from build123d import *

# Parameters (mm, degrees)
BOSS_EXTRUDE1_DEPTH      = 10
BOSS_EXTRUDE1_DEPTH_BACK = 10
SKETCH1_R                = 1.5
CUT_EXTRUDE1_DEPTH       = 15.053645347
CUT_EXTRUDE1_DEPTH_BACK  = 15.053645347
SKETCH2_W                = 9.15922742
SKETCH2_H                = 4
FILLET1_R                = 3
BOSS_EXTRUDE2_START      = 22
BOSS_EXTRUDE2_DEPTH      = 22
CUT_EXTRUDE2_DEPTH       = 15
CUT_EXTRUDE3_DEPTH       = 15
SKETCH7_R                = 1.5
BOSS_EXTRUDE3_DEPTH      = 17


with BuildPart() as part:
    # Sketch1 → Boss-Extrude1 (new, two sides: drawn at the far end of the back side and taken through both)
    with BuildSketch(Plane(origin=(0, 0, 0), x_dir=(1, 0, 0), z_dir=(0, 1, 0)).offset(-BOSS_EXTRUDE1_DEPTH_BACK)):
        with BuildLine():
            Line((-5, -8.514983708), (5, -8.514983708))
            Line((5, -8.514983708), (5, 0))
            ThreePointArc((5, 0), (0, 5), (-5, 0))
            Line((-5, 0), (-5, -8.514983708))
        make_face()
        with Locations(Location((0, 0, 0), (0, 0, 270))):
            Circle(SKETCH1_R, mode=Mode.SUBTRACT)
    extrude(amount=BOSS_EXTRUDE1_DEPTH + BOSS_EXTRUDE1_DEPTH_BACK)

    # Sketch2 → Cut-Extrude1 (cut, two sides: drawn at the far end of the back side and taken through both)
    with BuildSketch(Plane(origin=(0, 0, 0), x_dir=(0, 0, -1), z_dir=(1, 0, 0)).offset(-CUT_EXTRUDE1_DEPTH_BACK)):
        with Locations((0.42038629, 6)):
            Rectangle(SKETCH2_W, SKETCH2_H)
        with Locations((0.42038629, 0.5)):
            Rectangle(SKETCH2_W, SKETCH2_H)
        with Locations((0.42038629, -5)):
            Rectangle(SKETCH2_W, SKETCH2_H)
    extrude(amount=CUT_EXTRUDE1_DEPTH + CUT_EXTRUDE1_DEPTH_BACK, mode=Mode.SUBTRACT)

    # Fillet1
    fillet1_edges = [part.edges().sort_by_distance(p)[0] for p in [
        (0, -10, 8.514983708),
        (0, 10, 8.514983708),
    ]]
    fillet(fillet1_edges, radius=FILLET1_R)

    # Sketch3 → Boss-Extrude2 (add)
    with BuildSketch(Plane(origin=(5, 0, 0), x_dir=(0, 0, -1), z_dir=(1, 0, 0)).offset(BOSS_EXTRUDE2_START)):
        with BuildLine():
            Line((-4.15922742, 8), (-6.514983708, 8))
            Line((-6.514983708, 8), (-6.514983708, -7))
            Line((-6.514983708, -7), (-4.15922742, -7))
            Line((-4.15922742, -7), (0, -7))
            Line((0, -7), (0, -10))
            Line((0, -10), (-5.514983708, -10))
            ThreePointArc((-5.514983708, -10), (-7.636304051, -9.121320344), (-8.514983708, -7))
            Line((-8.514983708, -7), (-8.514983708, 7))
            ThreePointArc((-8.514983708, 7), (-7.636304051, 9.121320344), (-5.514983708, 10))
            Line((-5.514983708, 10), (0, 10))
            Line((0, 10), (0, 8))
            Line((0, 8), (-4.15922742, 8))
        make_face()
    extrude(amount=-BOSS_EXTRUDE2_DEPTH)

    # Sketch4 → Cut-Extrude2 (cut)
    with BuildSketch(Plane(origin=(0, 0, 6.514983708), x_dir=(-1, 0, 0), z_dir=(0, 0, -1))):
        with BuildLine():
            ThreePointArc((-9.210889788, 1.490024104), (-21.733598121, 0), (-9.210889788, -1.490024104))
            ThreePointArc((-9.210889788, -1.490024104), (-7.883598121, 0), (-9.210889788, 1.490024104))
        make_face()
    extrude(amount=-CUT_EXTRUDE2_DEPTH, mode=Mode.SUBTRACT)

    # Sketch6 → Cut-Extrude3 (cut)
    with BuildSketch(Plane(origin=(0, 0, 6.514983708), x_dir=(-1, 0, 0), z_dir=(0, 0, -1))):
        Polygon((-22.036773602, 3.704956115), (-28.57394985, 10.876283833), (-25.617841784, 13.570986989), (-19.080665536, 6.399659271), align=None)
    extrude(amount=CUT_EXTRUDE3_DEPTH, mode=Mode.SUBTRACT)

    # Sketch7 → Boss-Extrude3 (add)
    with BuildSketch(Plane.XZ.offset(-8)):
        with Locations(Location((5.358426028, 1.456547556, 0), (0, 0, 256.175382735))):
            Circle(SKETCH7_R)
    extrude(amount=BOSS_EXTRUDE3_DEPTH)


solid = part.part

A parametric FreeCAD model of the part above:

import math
import FreeCAD as App
import Part
import Sketcher

V = App.Vector
Q = App.Units.Quantity


def edges_at(feature, points):
    """Names of the edges that pass closest to the given points."""
    edges = feature.Shape.Edges
    near = lambda p: min(range(len(edges)), key=lambda i: edges[i].distToShape(Part.Vertex(*p))[0])
    return sorted({f"Edge{near(p) + 1}" for p in points})


def add_polygon(sketch, points):
    """Adds a closed chain of lines whose ends are joined by coincident constraints."""
    first, n = sketch.GeometryCount, len(points)
    for a, b in zip(points, points[1:] + points[:1]):
        sketch.addGeometry(Part.LineSegment(App.Vector(*a, 0), App.Vector(*b, 0)), False)
    for i in range(n):
        sketch.addConstraint(Sketcher.Constraint("Coincident", first + i, 2, first + (i + 1) % n, 1))

doc = App.newDocument("Part")
body = doc.addObject("PartDesign::Body", "Body")

# Sketch on XZ plane
sketch1 = doc.addObject("Sketcher::SketchObject", "Sketch")
body.addObject(sketch1)
sketch1.AttachmentSupport = (doc.XZ_Plane, [""])
sketch1.MapMode = "FlatFace"
sketch1.addGeometry([
    Part.LineSegment(V(-5, 8.514984, 0), V(5, 8.514984, 0)),  # 0
    Part.LineSegment(V(5, 8.514984, 0), V(5, 0, 0)),  # 1
    Part.ArcOfCircle(Part.Circle(V(0, 0, 0), V(0, 0, 1), 5), math.radians(180), math.radians(360)),  # 2
    Part.LineSegment(V(-5, 0, 0), V(-5, 8.514984, 0)),  # 3
    Part.Circle(V(0, 0, 0), V(0, 0, 1), 1.5),  # 4
], False)
sketch1.addConstraint([
    Sketcher.Constraint("Coincident", 0, 2, 1, 1),
    Sketcher.Constraint("Tangent", 1, 2, 2, 2),
    Sketcher.Constraint("Tangent", 2, 1, 3, 1),
    Sketcher.Constraint("Coincident", 3, 2, 0, 1),
    Sketcher.Constraint("Horizontal", 0),
    Sketcher.Constraint("Vertical", 1),
    Sketcher.Constraint("Vertical", 3),
    Sketcher.Constraint("Coincident", 2, 3, -1, 1),
    Sketcher.Constraint("Coincident", 4, 3, -1, 1),
    Sketcher.Constraint("Diameter", 4, Q("3 mm")),
    Sketcher.Constraint("Radius", 2, Q("5 mm")),
    Sketcher.Constraint("DistanceY", 1, 2, 1, 1, Q("8.514984 mm")),
])
pad1 = doc.addObject("PartDesign::Pad", "Pad")
body.addObject(pad1)
pad1.Profile = sketch1
pad1.Type = "TwoLengths"
pad1.Length = 10
pad1.Length2 = 10
pad1.Reversed = True

# Sketch on YZ plane
sketch2 = doc.addObject("Sketcher::SketchObject", "Sketch001")
body.addObject(sketch2)
sketch2.AttachmentSupport = (doc.YZ_Plane, [""])
sketch2.MapMode = "FlatFace"
add_polygon(sketch2, [(8, 4.159227), (4, 4.159227), (4, -5), (8, -5)])  # lines 0-3
add_polygon(sketch2, [(2.5, 4.159227), (-1.5, 4.159227), (-1.5, -5), (2.5, -5)])  # lines 4-7
add_polygon(sketch2, [(-3, 4.159227), (-7, 4.159227), (-7, -5), (-3, -5)])  # lines 8-11
sketch2.addConstraint([
    Sketcher.Constraint("Horizontal", 0),
    Sketcher.Constraint("Vertical", 1),
    Sketcher.Constraint("Horizontal", 2),
    Sketcher.Constraint("Vertical", 3),
    Sketcher.Constraint("Horizontal", 4),
    Sketcher.Constraint("Vertical", 5),
    Sketcher.Constraint("Horizontal", 6),
    Sketcher.Constraint("Vertical", 7),
    Sketcher.Constraint("Horizontal", 8),
    Sketcher.Constraint("Vertical", 9),
    Sketcher.Constraint("Horizontal", 10),
    Sketcher.Constraint("Vertical", 11),
    Sketcher.Constraint("Horizontal", 3, 2, 4, 2),
    Sketcher.Constraint("Horizontal", 2, 2, 5, 2),
    Sketcher.Constraint("Horizontal", 7, 2, 8, 2),
    Sketcher.Constraint("Horizontal", 6, 2, 9, 2),
    Sketcher.Constraint("Equal", 2, 4),
    Sketcher.Constraint("Equal", 6, 8),
    Sketcher.Constraint("DistanceX", 0, 2, 0, 1, Q("4 mm")),
    Sketcher.Constraint("DistanceX", -1, 1, 0, 2, Q("4 mm")),
    Sketcher.Constraint("DistanceY", 1, 2, -1, 1, Q("5 mm")),
    Sketcher.Constraint("DistanceX", 8, 2, -1, 1, Q("7 mm")),
    Sketcher.Constraint("DistanceX", 4, 2, -1, 1, Q("1.5 mm")),
    Sketcher.Constraint("DistanceY", 1, 2, 1, 1, Q("9.159227 mm")),
])
pocket1 = doc.addObject("PartDesign::Pocket", "Pocket")
body.addObject(pocket1)
pocket1.Profile = sketch2
pocket1.Type = "ThroughAll"
pocket1.Midplane = True
doc.recompute()

fillet = doc.addObject("PartDesign::Fillet", "Fillet")
body.addObject(fillet)
fillet.Base = (pocket1, edges_at(pocket1, [(0, -10, 8.515), (0, 10, 8.515)]))
fillet.Radius = 3

# Sketch on YZ plane
sketch3 = doc.addObject("Sketcher::SketchObject", "Sketch002")
body.addObject(sketch3)
sketch3.AttachmentSupport = (doc.YZ_Plane, [""])
sketch3.MapMode = "FlatFace"
sketch3.AttachmentOffset = App.Placement(V(0, 0, 27), App.Rotation())
sketch3.addGeometry([
    Part.LineSegment(V(-7, 6.514984, 0), V(8, 6.514984, 0)),  # 0
    Part.LineSegment(V(8, 6.514984, 0), V(8, 0, 0)),  # 1
    Part.LineSegment(V(8, 0, 0), V(10, 0, 0)),  # 2
    Part.LineSegment(V(10, 0, 0), V(10, 5.514984, 0)),  # 3
    Part.ArcOfCircle(Part.Circle(V(7, 5.514984, 0), V(0, 0, 1), 3), math.radians(0), math.radians(90)),  # 4
    Part.LineSegment(V(7, 8.514984, 0), V(-7, 8.514984, 0)),  # 5
    Part.ArcOfCircle(Part.Circle(V(-7, 5.514984, 0), V(0, 0, 1), 3), math.radians(90), math.radians(180)),  # 6
    Part.LineSegment(V(-10, 5.514984, 0), V(-10, 0, 0)),  # 7
    Part.LineSegment(V(-10, 0, 0), V(-7, 0, 0)),  # 8
    Part.LineSegment(V(-7, 0, 0), V(-7, 6.514984, 0)),  # 9
], False)
sketch3.addConstraint([
    Sketcher.Constraint("Coincident", 0, 2, 1, 1),
    Sketcher.Constraint("Coincident", 1, 2, 2, 1),
    Sketcher.Constraint("Coincident", 2, 2, 3, 1),
    Sketcher.Constraint("Tangent", 3, 2, 4, 1),
    Sketcher.Constraint("Tangent", 4, 2, 5, 1),
    Sketcher.Constraint("Tangent", 5, 2, 6, 1),
    Sketcher.Constraint("Tangent", 6, 2, 7, 1),
    Sketcher.Constraint("Coincident", 7, 2, 8, 1),
    Sketcher.Constraint("Coincident", 8, 2, 9, 1),
    Sketcher.Constraint("Coincident", 9, 2, 0, 1),
    Sketcher.Constraint("Horizontal", 0),
    Sketcher.Constraint("Vertical", 1),
    Sketcher.Constraint("Horizontal", 2),
    Sketcher.Constraint("Vertical", 3),
    Sketcher.Constraint("Horizontal", 5),
    Sketcher.Constraint("Vertical", 7),
    Sketcher.Constraint("Horizontal", 8),
    Sketcher.Constraint("Vertical", 9),
    Sketcher.Constraint("Equal", 4, 6),
    Sketcher.Constraint("Symmetric", 2, 2, 7, 2, -1, 1),
    Sketcher.Constraint("PointOnObject", 1, 2, -1),
    Sketcher.Constraint("Vertical", 5, 2, 8, 2),
    Sketcher.Constraint("Radius", 4, Q("3 mm")),
    Sketcher.Constraint("DistanceX", 0, 1, 0, 2, Q("15 mm")),
    Sketcher.Constraint("DistanceX", 2, 1, 2, 2, Q("2 mm")),
    Sketcher.Constraint("DistanceY", 4, 3, 0, 2, Q("1 mm")),
    Sketcher.Constraint("DistanceY", 1, 2, 1, 1, Q("6.514984 mm")),
])
pad2 = doc.addObject("PartDesign::Pad", "Pad001")
body.addObject(pad2)
pad2.Profile = sketch3
pad2.Length = 22
pad2.Reversed = True

# Sketch on XY plane
sketch4 = doc.addObject("Sketcher::SketchObject", "Sketch003")
body.addObject(sketch4)
sketch4.AttachmentSupport = (doc.XY_Plane, [""])
sketch4.MapMode = "FlatFace"
sketch4.AttachmentOffset = App.Placement(V(0, 0, 6.514984), App.Rotation())
sketch4.addGeometry([
    Part.ArcOfCircle(Part.Circle(V(15.383598, 0, 0), V(0, 0, 1), 6.35), math.radians(-166.429039), math.radians(166.429039)),
    Part.ArcOfCircle(Part.Circle(V(9.383598, 0, 0), V(0, 0, 1), 1.5), math.radians(96.611636), math.radians(263.388364)),
], False)
sketch4.addConstraint([
    Sketcher.Constraint("Coincident", 0, 1, 1, 2),
    Sketcher.Constraint("Coincident", 1, 1, 0, 2),
    Sketcher.Constraint("Symmetric", 0, 1, 1, 1, -1),
    Sketcher.Constraint("Radius", 1, Q("1.5 mm")),
    Sketcher.Constraint("Radius", 0, Q("6.35 mm")),
    Sketcher.Constraint("DistanceX", 1, 3, 0, 3, Q("6 mm")),
    Sketcher.Constraint("DistanceX", -1, 1, 0, 3, Q("15.383598 mm")),
])
pocket2 = doc.addObject("PartDesign::Pocket", "Pocket001")
body.addObject(pocket2)
pocket2.Profile = sketch4
pocket2.Length = 15
pocket2.Reversed = True

# Sketch on XY plane
sketch5 = doc.addObject("Sketcher::SketchObject", "Sketch004")
body.addObject(sketch5)
sketch5.AttachmentSupport = (doc.XY_Plane, [""])
sketch5.MapMode = "FlatFace"
sketch5.AttachmentOffset = App.Placement(V(0, 0, 6.514984), App.Rotation())
add_polygon(sketch5, [(28.57395, 10.876284), (22.036774, 3.704956), (19.080666, 6.399659), (25.617842, 13.570987)])  # lines 0-3
sketch5.addConstraint([
    Sketcher.Constraint("Perpendicular", 0, 1),
    Sketcher.Constraint("Perpendicular", 1, 2),
    Sketcher.Constraint("Perpendicular", 2, 3),
    Sketcher.Constraint("Distance", 1, Q("4 mm")),
    Sketcher.Constraint("DistanceY", -1, 1, 1, 2, Q("6.399659 mm")),
    Sketcher.Constraint("DistanceX", -1, 1, 2, 2, Q("25.617842 mm")),
    Sketcher.Constraint("DistanceX", -1, 1, 3, 2, Q("28.57395 mm")),
    Sketcher.Constraint("DistanceX", 0, 2, 2, 2, Q("3.581068 mm")),
])
pocket3 = doc.addObject("PartDesign::Pocket", "Pocket002")
body.addObject(pocket3)
pocket3.Profile = sketch5
pocket3.Length = 15

# Sketch on XZ plane
sketch6 = doc.addObject("Sketcher::SketchObject", "Sketch005")
body.addObject(sketch6)
sketch6.AttachmentSupport = (doc.XZ_Plane, [""])
sketch6.MapMode = "FlatFace"
sketch6.AttachmentOffset = App.Placement(V(0, 0, -8), App.Rotation())
sketch6.addGeometry(Part.Circle(V(5.358426, 1.456548, 0), V(0, 0, 1), 1.5), False)
sketch6.addConstraint([
    Sketcher.Constraint("Diameter", 0, Q("3 mm")),
    Sketcher.Constraint("DistanceX", -1, 1, 0, 3, Q("5.358426 mm")),
    Sketcher.Constraint("DistanceY", -1, 1, 0, 3, Q("1.456548 mm")),
])
pad3 = doc.addObject("PartDesign::Pad", "Pad002")
body.addObject(pad3)
pad3.Profile = sketch6
pad3.Length = 17

doc.recompute()
